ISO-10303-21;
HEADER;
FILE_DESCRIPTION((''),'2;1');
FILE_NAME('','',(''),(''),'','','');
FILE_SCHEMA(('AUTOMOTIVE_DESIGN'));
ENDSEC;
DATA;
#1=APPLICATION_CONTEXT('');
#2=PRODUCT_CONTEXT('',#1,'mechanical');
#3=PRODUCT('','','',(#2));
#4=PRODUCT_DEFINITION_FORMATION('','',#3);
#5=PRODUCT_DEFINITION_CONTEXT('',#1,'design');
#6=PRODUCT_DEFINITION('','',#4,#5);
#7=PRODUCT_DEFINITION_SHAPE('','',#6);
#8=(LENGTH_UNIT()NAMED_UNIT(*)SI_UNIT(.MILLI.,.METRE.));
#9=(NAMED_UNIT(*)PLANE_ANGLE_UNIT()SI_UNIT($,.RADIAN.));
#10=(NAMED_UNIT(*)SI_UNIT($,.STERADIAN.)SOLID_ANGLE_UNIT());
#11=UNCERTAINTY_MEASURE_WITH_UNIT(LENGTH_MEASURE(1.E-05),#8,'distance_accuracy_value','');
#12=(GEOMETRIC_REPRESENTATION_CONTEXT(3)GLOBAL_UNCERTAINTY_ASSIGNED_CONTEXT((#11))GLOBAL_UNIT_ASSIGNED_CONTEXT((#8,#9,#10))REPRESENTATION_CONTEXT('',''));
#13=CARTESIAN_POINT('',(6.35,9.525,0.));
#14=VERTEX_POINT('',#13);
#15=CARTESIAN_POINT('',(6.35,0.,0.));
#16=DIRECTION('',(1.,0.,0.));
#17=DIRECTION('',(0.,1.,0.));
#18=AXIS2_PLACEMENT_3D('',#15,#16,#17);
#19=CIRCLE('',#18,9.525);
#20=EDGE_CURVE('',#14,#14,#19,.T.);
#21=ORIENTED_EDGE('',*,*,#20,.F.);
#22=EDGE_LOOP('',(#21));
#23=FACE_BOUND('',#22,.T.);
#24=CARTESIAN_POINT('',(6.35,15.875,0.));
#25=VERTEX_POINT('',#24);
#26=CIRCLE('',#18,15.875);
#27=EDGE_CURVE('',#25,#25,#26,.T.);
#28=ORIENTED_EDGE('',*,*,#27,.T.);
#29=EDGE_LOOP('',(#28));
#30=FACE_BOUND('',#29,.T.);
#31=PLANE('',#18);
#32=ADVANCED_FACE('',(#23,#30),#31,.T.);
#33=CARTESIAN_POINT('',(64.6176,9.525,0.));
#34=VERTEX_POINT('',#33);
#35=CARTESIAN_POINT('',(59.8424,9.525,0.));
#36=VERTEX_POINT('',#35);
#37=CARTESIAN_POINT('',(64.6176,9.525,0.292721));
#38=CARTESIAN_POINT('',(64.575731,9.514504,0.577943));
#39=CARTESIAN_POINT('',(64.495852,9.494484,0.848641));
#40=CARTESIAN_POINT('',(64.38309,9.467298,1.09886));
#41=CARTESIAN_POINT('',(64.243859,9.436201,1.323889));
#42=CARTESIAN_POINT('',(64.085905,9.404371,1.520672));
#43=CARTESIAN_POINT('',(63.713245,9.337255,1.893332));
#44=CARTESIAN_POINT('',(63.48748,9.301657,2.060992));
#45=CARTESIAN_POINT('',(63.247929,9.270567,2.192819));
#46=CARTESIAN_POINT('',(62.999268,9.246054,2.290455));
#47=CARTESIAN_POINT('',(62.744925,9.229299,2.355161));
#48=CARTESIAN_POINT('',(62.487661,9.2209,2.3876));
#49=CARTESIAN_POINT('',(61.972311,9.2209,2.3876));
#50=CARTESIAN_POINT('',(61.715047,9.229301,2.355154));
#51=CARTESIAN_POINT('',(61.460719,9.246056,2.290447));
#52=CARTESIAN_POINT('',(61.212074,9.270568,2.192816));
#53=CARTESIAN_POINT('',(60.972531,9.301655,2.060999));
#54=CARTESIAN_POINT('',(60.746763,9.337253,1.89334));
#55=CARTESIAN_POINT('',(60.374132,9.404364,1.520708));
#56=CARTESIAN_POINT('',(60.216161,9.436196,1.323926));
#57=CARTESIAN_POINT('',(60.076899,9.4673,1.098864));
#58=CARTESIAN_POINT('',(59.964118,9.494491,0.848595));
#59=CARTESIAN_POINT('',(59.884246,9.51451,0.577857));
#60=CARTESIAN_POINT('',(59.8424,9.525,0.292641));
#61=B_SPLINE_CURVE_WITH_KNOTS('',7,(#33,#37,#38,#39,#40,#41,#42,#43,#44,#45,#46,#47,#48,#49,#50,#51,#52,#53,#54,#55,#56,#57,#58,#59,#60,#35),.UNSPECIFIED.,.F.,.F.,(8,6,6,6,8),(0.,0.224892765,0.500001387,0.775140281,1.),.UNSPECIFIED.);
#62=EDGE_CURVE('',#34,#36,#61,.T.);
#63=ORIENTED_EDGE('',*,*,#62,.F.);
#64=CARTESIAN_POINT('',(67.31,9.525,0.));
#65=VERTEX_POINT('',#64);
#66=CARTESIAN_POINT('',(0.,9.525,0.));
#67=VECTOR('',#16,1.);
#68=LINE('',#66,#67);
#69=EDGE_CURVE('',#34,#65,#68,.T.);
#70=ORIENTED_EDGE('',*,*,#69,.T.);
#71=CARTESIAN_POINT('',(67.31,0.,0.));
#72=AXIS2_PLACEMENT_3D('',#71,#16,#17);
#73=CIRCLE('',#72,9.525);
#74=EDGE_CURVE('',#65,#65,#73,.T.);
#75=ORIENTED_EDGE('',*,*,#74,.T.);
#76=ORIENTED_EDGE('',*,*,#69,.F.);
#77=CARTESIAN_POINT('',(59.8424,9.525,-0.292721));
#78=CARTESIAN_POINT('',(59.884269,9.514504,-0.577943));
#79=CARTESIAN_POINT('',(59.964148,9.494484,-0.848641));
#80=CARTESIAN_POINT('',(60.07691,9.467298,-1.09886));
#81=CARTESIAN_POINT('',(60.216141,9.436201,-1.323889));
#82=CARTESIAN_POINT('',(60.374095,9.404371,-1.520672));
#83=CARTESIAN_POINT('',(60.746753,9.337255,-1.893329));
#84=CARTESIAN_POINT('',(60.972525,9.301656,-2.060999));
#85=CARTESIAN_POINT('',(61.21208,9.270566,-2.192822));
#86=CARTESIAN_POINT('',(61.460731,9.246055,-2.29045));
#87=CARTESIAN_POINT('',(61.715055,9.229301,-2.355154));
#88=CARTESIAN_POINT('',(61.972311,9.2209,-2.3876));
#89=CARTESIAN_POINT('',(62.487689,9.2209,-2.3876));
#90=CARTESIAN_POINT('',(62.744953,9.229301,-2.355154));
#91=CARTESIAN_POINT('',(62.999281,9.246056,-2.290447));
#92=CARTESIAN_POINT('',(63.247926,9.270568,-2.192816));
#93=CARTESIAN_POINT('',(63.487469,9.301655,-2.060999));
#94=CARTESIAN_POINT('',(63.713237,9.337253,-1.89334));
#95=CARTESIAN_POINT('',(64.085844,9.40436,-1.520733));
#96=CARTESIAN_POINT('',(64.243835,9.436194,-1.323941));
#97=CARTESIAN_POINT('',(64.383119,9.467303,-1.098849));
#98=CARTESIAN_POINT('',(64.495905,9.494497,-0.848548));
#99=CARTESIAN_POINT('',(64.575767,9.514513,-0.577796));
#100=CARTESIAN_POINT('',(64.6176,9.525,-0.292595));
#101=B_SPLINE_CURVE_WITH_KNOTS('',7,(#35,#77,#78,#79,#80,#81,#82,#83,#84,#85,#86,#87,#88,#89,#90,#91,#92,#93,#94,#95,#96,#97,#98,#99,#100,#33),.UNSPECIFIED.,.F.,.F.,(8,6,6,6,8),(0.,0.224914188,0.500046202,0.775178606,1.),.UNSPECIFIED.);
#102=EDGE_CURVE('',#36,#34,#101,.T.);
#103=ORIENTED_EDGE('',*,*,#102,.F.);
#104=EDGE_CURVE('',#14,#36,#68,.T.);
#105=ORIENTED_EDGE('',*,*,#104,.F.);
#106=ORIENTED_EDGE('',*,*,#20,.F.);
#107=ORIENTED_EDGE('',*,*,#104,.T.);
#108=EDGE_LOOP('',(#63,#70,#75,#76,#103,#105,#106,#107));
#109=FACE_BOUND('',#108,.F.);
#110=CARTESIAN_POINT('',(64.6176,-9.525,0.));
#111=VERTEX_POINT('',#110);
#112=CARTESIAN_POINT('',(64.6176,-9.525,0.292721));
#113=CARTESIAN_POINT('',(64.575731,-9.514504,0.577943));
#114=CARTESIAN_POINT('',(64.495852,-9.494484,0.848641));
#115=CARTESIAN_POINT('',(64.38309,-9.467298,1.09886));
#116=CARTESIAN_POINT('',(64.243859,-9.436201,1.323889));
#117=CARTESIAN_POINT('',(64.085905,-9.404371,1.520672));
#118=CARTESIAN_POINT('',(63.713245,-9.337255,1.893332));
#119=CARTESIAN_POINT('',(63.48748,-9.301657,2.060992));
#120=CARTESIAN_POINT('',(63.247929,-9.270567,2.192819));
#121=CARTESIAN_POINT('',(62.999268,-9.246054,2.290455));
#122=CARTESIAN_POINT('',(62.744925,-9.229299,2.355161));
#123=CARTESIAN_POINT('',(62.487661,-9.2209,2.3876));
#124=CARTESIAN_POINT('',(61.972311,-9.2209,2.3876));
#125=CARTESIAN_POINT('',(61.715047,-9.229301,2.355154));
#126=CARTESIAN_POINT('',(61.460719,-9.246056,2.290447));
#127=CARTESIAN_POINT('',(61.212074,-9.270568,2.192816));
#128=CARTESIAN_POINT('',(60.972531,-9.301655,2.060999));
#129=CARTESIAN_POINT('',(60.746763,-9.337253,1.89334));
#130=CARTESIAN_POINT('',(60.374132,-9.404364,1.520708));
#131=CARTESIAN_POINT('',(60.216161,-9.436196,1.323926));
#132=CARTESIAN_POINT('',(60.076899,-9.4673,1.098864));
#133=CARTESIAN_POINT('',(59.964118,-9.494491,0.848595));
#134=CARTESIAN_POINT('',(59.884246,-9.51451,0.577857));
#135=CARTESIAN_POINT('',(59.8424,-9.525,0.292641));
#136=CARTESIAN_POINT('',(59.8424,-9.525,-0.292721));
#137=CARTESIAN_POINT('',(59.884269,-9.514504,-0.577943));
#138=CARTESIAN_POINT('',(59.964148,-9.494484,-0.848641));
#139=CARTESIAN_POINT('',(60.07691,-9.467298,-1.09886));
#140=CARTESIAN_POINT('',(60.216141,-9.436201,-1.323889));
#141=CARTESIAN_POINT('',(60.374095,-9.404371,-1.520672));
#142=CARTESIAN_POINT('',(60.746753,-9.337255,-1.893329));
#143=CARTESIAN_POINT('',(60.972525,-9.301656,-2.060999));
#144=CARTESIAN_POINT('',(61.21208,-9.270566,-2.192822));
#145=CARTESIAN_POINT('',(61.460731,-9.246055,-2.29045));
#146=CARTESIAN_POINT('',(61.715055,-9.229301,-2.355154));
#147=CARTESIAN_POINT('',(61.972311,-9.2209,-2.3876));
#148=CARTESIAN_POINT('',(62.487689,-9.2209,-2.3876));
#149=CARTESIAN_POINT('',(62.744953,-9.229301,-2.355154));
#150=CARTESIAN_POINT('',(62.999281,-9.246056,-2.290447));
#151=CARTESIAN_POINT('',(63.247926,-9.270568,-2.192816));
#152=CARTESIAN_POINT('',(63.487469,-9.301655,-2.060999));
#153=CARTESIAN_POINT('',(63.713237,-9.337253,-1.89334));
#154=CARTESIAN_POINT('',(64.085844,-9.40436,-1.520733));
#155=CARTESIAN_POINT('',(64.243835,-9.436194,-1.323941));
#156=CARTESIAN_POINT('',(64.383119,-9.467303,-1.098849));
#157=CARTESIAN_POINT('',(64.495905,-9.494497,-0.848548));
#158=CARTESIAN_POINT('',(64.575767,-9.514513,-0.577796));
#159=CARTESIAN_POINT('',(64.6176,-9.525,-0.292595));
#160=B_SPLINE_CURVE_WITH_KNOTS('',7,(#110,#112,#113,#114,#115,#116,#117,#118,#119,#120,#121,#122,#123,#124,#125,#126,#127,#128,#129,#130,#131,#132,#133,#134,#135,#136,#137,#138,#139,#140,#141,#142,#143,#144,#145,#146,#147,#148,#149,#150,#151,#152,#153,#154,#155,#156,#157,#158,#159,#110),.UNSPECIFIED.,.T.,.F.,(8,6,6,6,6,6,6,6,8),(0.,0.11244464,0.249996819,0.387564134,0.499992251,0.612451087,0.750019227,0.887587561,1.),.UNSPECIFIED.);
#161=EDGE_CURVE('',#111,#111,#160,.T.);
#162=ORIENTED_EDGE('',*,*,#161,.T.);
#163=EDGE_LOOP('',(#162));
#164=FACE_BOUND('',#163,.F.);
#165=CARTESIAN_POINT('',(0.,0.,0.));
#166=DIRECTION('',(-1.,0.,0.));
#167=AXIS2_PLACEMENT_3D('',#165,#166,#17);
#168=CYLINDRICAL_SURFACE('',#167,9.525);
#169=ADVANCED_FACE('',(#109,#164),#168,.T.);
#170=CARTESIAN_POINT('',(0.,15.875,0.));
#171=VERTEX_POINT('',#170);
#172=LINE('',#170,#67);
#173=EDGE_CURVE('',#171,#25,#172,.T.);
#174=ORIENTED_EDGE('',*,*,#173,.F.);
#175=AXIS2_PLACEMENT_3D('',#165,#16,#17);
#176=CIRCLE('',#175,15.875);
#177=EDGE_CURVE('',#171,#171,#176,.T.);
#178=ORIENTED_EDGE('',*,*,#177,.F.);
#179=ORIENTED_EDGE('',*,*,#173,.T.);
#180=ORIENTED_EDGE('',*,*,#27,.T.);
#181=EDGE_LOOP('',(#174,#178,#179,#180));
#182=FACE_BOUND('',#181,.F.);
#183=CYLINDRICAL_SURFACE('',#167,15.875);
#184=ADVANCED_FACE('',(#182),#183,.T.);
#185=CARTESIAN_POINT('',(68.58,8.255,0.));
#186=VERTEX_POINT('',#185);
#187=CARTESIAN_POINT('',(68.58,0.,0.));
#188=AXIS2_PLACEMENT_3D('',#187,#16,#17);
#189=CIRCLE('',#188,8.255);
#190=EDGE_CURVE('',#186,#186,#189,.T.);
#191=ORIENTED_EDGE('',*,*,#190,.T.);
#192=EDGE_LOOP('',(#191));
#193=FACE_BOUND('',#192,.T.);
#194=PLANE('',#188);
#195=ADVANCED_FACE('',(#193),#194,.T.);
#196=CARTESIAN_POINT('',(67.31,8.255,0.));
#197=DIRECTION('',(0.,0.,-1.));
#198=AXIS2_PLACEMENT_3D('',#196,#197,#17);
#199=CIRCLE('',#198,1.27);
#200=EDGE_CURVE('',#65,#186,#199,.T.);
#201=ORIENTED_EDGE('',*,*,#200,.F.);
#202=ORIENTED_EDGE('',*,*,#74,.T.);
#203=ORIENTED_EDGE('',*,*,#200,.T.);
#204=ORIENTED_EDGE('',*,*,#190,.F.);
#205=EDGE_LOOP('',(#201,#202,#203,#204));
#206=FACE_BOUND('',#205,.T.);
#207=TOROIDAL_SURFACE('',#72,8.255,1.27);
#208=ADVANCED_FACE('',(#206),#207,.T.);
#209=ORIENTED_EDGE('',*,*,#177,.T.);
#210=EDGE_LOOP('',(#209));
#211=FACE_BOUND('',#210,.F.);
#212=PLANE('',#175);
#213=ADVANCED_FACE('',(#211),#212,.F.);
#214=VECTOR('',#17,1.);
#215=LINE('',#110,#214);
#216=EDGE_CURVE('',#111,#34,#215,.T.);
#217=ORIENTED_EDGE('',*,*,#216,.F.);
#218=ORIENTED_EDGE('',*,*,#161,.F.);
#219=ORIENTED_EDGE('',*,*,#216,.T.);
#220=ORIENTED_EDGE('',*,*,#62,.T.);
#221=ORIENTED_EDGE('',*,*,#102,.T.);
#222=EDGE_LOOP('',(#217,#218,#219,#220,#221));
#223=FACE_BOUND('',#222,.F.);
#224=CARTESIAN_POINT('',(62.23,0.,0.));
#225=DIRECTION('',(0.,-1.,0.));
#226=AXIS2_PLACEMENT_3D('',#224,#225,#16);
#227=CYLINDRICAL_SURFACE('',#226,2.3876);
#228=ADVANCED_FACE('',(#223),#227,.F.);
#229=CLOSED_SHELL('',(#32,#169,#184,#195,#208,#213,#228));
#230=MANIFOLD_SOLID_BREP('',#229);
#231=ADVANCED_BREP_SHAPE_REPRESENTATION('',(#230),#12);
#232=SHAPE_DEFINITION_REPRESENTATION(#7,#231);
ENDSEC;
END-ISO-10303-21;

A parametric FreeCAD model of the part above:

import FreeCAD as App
import Part
import Sketcher
Q = App.Units.Quantity


def edges_at(feature, points):
    """Names of the edges that pass closest to the given points."""
    edges = feature.Shape.Edges
    near = lambda p: min(range(len(edges)), key=lambda i: edges[i].distToShape(Part.Vertex(*p))[0])
    return sorted({f"Edge{near(p) + 1}" for p in points})

doc = App.newDocument("Part")
body = doc.addObject("PartDesign::Body", "Body")

# Sketch on YZ plane
sketch1 = doc.addObject("Sketcher::SketchObject", "Sketch")
body.addObject(sketch1)
sketch1.AttachmentSupport = (doc.YZ_Plane, [""])
sketch1.MapMode = "FlatFace"
sketch1.addGeometry(Part.Circle(App.Vector(0, 0, 0), App.Vector(0, 0, 1), 16), False)
sketch1.addGeometry(Part.Circle(App.Vector(0, 0, 0), App.Vector(0, 0, 1), 10), False)
sketch1.addConstraint(Sketcher.Constraint("Coincident", 0, 3, -1, 1))
sketch1.addConstraint(Sketcher.Constraint("Coincident", 1, 3, -1, 1))
sketch1.addConstraint(Sketcher.Constraint("Diameter", 0, Q("1.25 in")))
sketch1.addConstraint(Sketcher.Constraint("Diameter", 1, Q("0.75 in")))
pad1 = doc.addObject("PartDesign::Pad", "Pad")
body.addObject(pad1)
pad1.Profile = sketch1
pad1.Length = Q("0.25 in")

# Sketch on YZ plane
sketch2 = doc.addObject("Sketcher::SketchObject", "Sketch001")
body.addObject(sketch2)
sketch2.AttachmentSupport = (doc.YZ_Plane, [""])
sketch2.MapMode = "FlatFace"
sketch2.addGeometry(Part.Circle(App.Vector(0, 0, 0), App.Vector(0, 0, 1), 10), False)
sketch2.addConstraint(Sketcher.Constraint("Coincident", 0, 3, -1, 1))
sketch2.addConstraint(Sketcher.Constraint("Diameter", 0, Q("0.75 in")))
pad2 = doc.addObject("PartDesign::Pad", "Pad001")
body.addObject(pad2)
pad2.Profile = sketch2
pad2.Length = Q("2.7 in")

# Sketch on XZ plane
sketch3 = doc.addObject("Sketcher::SketchObject", "Sketch002")
body.addObject(sketch3)
sketch3.AttachmentSupport = (doc.XZ_Plane, [""])
sketch3.MapMode = "FlatFace"
sketch3.addGeometry(Part.Circle(App.Vector(62.2, 0, 0), App.Vector(0, 0, 1), 2.4), False)
sketch3.addConstraint(Sketcher.Constraint("PointOnObject", 0, 3, -1))
sketch3.addConstraint(Sketcher.Constraint("Diameter", 0, Q("0.188 in")))
sketch3.addConstraint(Sketcher.Constraint("DistanceX", -1, 1, 0, 3, Q("2.45 in")))
pocket1 = doc.addObject("PartDesign::Pocket", "Pocket")
body.addObject(pocket1)
pocket1.Profile = sketch3
pocket1.Type = "ThroughAll"
pocket1.Midplane = True
doc.recompute()

fillet = doc.addObject("PartDesign::Fillet", "Fillet")
body.addObject(fillet)
fillet.Base = (pocket1, edges_at(pocket1, [(68.58, -9.525, 0)]))
fillet.Radius = Q("0.05 in")

doc.recompute()
